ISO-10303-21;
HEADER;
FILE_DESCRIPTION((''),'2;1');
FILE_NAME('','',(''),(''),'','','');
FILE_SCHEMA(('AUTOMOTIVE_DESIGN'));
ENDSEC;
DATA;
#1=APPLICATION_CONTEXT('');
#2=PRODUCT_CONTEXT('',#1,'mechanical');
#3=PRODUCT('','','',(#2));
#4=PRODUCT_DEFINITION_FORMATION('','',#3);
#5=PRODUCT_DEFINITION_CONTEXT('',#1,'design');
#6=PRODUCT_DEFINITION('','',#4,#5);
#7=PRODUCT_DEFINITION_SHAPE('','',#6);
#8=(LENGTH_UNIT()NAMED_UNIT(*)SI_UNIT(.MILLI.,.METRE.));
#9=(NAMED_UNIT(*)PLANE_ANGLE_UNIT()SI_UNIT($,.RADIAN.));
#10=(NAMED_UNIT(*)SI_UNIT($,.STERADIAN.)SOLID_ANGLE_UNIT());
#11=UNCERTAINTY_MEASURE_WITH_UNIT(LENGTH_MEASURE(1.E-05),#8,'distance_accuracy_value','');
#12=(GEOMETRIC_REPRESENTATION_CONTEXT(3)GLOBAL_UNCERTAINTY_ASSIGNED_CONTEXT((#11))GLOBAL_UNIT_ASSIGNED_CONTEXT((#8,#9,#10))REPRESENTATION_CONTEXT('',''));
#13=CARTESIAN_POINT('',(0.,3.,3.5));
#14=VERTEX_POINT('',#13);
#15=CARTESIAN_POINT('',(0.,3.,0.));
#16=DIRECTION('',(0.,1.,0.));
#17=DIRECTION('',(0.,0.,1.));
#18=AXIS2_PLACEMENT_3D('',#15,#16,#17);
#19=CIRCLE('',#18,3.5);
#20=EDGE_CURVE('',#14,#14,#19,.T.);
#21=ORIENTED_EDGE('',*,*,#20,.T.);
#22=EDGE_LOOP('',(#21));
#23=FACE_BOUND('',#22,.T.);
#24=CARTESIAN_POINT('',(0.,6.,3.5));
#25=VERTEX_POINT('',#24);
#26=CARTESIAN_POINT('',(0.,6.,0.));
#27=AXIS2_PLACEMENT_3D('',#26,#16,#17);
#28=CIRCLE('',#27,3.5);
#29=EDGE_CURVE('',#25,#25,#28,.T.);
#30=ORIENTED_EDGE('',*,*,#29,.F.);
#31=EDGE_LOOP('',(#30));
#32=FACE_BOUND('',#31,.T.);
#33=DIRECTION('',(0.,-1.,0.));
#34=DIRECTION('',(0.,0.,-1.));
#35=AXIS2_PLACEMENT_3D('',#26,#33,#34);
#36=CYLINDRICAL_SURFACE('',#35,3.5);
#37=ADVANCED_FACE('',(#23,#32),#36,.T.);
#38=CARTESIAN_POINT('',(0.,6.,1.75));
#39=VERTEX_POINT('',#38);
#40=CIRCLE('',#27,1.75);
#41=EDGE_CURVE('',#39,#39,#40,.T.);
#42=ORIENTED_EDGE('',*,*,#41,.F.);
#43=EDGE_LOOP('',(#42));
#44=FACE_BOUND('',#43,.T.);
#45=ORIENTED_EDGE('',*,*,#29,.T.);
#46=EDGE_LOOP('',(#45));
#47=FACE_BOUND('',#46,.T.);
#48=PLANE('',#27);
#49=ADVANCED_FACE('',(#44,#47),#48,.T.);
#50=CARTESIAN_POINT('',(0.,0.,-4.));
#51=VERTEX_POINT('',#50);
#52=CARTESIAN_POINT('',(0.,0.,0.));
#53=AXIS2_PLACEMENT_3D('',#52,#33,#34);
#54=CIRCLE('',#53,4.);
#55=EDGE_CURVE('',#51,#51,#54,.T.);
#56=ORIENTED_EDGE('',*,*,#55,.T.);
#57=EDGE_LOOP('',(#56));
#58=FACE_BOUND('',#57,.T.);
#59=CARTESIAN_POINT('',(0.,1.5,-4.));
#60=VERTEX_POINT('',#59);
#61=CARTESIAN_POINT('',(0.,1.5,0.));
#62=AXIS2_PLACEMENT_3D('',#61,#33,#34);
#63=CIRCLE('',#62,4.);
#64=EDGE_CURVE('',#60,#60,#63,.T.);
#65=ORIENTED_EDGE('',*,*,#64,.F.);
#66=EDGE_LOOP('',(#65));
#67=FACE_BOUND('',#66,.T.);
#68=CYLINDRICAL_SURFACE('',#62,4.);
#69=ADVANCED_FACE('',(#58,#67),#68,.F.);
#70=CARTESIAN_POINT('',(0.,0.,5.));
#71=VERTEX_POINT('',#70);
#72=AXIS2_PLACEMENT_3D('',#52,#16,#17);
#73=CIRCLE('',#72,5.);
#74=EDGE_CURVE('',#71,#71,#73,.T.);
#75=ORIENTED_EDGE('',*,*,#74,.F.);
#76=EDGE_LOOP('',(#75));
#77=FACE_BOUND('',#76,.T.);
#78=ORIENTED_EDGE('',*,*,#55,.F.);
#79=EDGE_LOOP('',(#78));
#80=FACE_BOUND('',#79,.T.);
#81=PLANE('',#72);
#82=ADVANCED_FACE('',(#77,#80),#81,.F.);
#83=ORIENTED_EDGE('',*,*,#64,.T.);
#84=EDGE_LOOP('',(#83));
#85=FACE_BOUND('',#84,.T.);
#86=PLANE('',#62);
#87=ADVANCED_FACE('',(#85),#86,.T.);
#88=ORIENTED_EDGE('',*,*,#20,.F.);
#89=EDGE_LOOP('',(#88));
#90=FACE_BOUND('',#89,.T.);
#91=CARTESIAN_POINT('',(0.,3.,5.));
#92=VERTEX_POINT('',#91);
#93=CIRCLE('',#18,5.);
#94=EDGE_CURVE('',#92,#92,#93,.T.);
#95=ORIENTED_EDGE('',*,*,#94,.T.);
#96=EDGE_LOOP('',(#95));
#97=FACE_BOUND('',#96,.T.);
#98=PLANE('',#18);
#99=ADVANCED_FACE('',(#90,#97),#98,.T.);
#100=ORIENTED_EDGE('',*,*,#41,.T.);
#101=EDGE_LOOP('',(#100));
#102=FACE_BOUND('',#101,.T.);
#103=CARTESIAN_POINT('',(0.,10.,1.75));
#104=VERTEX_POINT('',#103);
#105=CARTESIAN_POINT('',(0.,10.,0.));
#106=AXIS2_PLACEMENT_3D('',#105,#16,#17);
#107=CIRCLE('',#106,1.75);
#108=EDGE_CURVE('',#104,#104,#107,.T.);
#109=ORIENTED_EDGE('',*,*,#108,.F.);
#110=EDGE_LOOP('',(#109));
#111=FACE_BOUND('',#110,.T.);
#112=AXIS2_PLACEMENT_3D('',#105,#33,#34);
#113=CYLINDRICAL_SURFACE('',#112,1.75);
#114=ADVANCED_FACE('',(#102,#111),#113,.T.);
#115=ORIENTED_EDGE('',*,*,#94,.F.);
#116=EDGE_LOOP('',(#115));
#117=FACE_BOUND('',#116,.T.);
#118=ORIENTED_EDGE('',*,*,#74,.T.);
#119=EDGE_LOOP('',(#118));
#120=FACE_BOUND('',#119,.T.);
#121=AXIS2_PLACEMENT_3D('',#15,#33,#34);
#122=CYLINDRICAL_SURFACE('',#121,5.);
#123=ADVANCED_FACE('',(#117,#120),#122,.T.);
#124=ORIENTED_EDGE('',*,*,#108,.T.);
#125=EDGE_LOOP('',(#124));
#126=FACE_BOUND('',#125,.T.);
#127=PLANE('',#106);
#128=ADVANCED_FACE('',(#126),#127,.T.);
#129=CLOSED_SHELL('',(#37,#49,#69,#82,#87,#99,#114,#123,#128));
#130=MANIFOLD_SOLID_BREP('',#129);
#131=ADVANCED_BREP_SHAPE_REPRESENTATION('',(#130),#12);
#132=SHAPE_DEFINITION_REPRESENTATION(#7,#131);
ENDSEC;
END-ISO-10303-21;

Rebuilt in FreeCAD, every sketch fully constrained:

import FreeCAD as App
import Part
import Sketcher

doc = App.newDocument("Part")
body = doc.addObject("PartDesign::Body", "Body")

# Sketch on XZ plane
sketch1 = body.newObject("Sketcher::SketchObject", "Sketch")
sketch1.AttachmentSupport = (doc.getObject("XZ_Plane"), [""])
sketch1.MapMode = "FlatFace"
sketch1.addGeometry(Part.Circle(App.Vector(0, 0, 0), App.Vector(0, 0, 1), 5), False)
sketch1.addConstraint([
    Sketcher.Constraint("Coincident", 0, 3, -1, 1),
    Sketcher.Constraint("Diameter", 0, 10.0),
])
pad1 = body.newObject("PartDesign::Pad", "Pad")
pad1.Profile = sketch1
pad1.Length = 3
pad1.Reversed = True

# Sketch on XZ plane
sketch2 = body.newObject("Sketcher::SketchObject", "Sketch001")
sketch2.AttachmentSupport = (doc.getObject("XZ_Plane"), [""])
sketch2.MapMode = "FlatFace"
sketch2.AttachmentOffset = App.Placement(App.Vector(0, 0, -3), App.Rotation())
sketch2.addGeometry(Part.Circle(App.Vector(0, 0, 0), App.Vector(0, 0, 1), 3.5), False)
sketch2.addConstraint([
    Sketcher.Constraint("Coincident", 0, 3, -1, 1),
    Sketcher.Constraint("Diameter", 0, 7.0),
])
pad2 = body.newObject("PartDesign::Pad", "Pad001")
pad2.Profile = sketch2
pad2.Length = 3
pad2.Reversed = True

# Sketch on XZ plane
sketch3 = body.newObject("Sketcher::SketchObject", "Sketch002")
sketch3.AttachmentSupport = (doc.getObject("XZ_Plane"), [""])
sketch3.MapMode = "FlatFace"
sketch3.AttachmentOffset = App.Placement(App.Vector(0, 0, -6), App.Rotation())
sketch3.addGeometry(Part.Circle(App.Vector(0, 0, 0), App.Vector(0, 0, 1), 1.8), False)
sketch3.addConstraint([
    Sketcher.Constraint("Coincident", 0, 3, -1, 1),
    Sketcher.Constraint("Diameter", 0, 3.5),
])
pad3 = body.newObject("PartDesign::Pad", "Pad002")
pad3.Profile = sketch3
pad3.Length = 4
pad3.Reversed = True

# Sketch on XZ plane
sketch4 = body.newObject("Sketcher::SketchObject", "Sketch003")
sketch4.AttachmentSupport = (doc.getObject("XZ_Plane"), [""])
sketch4.MapMode = "FlatFace"
sketch4.addGeometry(Part.Circle(App.Vector(0, 0, 0), App.Vector(0, 0, 1), 4), False)
sketch4.addConstraint([
    Sketcher.Constraint("Coincident", 0, 3, -1, 1),
    Sketcher.Constraint("Diameter", 0, 8.0),
])
pocket1 = body.newObject("PartDesign::Pocket", "Pocket")
pocket1.Profile = sketch4
pocket1.Length = 1.5

doc.recompute()
